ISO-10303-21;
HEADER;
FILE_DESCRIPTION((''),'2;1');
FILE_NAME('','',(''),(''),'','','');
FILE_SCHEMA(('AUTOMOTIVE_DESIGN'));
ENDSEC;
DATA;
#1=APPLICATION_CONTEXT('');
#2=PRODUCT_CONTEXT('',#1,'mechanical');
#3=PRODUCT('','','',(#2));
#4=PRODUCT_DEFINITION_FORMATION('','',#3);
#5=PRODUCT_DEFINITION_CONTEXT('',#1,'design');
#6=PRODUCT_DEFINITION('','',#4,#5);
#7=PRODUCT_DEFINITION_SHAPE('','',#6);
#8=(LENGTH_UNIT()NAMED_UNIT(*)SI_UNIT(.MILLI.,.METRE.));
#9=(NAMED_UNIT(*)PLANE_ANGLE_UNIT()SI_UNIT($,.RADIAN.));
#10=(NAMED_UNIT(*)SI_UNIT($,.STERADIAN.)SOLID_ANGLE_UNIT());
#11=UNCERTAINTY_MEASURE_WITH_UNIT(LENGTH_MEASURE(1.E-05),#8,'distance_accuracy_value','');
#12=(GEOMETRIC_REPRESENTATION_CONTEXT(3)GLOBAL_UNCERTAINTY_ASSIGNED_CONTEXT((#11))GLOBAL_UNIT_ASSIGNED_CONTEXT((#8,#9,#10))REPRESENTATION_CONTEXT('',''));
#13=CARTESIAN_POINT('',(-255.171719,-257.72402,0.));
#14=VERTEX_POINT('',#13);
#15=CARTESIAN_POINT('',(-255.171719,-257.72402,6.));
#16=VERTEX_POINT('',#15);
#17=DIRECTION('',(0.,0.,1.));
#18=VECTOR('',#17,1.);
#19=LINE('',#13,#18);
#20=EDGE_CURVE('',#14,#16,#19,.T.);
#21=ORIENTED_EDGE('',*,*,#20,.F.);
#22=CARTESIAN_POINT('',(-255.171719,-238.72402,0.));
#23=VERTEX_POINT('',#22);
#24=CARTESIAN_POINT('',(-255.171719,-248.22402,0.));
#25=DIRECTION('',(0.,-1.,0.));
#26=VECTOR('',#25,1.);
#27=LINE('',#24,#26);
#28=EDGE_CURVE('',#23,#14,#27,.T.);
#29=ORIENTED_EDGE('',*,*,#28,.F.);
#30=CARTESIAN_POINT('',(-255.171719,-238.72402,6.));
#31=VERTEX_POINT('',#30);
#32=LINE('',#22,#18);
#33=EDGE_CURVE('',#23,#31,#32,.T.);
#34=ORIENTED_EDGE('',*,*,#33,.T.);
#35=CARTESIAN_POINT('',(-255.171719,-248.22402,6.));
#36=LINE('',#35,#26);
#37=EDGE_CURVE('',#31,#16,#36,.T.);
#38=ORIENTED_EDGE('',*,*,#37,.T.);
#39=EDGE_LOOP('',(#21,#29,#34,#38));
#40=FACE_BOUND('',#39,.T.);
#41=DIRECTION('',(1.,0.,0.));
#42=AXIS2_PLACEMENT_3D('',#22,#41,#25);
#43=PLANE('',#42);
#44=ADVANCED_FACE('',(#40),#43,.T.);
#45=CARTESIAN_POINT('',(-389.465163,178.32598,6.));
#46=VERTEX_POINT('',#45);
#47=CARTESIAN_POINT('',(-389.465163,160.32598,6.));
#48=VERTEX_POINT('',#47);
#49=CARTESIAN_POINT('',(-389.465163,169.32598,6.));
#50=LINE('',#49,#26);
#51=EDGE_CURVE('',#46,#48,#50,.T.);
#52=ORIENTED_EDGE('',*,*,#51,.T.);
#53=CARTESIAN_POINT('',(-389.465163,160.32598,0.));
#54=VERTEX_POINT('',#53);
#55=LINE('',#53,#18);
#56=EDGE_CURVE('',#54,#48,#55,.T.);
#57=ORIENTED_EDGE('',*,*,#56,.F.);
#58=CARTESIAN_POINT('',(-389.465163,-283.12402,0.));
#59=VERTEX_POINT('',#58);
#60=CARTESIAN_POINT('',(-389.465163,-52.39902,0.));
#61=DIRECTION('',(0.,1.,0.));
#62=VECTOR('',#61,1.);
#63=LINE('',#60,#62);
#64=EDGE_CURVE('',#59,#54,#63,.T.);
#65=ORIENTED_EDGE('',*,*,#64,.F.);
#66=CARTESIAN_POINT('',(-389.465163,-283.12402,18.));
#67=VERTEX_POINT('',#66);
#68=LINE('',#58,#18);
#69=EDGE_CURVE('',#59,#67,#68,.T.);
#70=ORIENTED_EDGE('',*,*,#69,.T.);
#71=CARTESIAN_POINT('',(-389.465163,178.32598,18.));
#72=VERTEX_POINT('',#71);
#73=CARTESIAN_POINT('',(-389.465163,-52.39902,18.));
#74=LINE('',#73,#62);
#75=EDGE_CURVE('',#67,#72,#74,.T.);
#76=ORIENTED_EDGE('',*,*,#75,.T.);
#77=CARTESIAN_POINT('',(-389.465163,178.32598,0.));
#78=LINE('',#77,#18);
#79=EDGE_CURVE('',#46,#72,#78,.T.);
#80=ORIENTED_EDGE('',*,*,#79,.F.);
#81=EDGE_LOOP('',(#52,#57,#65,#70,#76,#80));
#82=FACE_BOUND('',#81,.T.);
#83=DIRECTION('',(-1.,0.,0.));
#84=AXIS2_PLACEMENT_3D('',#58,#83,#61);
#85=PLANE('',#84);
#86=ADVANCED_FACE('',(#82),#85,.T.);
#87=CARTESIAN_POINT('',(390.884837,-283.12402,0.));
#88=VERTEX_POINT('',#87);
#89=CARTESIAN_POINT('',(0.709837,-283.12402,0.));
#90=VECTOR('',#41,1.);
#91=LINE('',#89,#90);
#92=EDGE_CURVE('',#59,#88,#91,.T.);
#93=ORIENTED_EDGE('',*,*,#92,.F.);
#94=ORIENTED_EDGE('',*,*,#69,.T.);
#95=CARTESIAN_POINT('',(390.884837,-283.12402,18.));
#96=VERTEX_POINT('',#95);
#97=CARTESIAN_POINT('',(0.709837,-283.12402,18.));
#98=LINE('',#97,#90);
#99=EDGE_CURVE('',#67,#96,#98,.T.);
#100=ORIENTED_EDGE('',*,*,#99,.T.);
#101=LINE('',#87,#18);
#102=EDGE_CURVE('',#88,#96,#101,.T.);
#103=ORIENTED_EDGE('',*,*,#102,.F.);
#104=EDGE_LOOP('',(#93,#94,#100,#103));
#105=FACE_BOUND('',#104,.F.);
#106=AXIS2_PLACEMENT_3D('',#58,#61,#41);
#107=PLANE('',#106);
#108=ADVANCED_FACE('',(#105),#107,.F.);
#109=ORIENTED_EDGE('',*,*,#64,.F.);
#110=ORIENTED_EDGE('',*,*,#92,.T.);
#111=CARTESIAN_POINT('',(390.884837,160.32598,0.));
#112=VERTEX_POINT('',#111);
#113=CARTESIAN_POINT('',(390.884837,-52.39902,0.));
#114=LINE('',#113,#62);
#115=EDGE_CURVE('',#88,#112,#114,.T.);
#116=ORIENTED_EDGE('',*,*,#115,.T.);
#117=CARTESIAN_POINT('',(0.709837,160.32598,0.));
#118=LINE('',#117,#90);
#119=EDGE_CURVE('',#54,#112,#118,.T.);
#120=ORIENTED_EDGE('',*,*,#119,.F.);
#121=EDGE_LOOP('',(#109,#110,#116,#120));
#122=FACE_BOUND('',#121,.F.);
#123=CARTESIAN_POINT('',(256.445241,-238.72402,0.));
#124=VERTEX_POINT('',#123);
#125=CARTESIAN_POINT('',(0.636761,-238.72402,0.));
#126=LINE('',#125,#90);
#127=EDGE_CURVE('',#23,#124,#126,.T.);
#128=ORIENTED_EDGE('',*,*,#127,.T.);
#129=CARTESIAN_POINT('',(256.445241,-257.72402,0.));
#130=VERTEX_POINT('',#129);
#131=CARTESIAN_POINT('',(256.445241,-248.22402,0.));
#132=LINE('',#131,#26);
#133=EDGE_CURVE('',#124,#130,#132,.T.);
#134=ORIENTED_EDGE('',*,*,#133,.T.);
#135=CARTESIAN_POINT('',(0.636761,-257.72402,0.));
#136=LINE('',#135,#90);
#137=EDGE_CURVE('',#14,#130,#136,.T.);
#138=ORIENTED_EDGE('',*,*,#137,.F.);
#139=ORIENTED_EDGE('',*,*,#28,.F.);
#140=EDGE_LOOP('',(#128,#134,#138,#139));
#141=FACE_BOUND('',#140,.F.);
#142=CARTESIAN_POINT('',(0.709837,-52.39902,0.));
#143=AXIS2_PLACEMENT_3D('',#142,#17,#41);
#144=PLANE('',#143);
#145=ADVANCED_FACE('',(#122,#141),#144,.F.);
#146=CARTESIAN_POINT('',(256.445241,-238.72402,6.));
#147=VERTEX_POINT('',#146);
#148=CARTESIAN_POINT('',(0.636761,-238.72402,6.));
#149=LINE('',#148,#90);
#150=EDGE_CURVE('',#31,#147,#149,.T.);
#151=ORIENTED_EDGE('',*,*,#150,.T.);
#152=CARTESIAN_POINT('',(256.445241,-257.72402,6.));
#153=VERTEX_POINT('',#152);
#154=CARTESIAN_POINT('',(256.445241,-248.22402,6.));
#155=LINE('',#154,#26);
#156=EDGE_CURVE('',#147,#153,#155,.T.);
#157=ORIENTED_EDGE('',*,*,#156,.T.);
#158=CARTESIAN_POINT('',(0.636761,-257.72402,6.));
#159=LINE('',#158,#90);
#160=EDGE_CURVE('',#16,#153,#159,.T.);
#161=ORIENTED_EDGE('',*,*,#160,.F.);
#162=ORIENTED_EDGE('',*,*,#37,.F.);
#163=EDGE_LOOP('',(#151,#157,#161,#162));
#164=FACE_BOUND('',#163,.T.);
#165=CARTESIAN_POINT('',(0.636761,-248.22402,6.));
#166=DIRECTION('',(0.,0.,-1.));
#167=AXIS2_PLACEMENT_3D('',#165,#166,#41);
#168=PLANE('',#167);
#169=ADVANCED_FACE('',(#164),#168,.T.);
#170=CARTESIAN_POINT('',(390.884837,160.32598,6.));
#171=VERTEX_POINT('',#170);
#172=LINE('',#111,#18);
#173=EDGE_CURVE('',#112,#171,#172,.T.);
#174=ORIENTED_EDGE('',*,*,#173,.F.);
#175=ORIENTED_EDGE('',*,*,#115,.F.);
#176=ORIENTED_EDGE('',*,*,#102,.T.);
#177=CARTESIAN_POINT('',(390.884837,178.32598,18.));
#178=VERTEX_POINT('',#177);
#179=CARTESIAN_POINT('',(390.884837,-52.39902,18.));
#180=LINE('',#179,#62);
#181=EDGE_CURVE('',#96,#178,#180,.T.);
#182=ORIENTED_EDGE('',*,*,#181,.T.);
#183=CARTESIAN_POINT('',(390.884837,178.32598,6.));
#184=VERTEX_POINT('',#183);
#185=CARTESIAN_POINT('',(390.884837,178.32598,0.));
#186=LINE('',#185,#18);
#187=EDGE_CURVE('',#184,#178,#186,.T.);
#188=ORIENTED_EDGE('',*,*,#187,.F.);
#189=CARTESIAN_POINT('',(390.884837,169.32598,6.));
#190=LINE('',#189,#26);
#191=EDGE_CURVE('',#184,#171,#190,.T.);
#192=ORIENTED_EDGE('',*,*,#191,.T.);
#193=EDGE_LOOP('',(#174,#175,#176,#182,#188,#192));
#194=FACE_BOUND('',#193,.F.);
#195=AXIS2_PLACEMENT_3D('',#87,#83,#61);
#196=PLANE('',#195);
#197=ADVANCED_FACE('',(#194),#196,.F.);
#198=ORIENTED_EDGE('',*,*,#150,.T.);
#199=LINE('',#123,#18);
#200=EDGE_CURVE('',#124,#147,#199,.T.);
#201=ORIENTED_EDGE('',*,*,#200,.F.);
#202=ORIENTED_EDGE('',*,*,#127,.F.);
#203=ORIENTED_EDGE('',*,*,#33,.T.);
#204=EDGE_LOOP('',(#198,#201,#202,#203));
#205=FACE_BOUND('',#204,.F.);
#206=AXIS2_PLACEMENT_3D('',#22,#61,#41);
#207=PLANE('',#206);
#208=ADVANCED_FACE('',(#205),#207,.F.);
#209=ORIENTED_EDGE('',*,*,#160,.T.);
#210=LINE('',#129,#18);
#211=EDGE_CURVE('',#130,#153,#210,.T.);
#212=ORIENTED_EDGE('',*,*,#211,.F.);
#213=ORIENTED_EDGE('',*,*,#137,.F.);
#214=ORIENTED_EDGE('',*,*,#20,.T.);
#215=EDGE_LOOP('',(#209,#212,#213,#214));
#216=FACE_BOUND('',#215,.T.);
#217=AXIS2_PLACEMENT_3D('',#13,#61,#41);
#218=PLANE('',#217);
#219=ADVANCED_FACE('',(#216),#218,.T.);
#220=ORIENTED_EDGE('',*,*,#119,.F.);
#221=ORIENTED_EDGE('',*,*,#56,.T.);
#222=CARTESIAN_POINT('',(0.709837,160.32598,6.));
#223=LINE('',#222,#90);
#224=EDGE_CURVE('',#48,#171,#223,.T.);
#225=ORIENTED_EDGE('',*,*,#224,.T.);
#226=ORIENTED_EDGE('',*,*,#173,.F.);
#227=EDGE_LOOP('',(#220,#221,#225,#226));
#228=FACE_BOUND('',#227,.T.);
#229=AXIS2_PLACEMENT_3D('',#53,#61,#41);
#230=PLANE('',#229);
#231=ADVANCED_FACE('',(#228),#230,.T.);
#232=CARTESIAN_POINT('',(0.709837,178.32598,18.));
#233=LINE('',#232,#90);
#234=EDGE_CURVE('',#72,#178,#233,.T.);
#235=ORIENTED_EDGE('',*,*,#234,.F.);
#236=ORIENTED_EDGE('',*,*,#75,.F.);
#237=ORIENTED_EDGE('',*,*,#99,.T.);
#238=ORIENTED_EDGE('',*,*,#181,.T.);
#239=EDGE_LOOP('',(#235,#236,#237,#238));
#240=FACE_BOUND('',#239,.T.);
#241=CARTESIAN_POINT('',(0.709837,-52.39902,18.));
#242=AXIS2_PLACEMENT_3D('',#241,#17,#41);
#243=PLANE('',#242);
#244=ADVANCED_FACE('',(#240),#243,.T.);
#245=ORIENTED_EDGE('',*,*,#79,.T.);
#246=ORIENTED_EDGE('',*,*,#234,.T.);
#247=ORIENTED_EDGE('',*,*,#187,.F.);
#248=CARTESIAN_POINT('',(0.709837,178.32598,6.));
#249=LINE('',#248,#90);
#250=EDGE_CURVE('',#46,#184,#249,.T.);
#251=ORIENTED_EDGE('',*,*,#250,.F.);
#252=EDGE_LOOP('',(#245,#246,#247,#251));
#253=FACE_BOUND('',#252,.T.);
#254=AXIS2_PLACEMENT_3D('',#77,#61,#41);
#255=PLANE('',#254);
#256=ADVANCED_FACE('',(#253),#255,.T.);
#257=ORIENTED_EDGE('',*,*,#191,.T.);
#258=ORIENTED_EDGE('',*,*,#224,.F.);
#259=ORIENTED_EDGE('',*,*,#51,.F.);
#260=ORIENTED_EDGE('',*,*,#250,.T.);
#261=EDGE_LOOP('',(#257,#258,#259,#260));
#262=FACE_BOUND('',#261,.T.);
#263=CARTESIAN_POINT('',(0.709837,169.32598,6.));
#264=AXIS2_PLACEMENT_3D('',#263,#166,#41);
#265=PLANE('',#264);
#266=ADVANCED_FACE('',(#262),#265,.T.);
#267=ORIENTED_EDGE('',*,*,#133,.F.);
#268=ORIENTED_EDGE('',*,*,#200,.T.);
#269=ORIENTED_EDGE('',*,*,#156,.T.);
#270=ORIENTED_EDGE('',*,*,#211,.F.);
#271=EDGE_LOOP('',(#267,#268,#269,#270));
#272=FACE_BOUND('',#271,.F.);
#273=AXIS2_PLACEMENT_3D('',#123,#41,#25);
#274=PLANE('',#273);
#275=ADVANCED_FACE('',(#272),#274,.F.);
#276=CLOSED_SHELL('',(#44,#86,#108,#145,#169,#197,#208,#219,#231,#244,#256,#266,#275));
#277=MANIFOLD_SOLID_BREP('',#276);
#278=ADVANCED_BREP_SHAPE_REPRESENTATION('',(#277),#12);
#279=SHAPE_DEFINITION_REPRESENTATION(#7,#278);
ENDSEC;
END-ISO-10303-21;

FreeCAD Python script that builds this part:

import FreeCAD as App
import Part
import Sketcher

doc = App.newDocument("Part")
body = doc.addObject("PartDesign::Body", "Body")

# Sketch on XY plane
sketch1 = body.newObject("Sketcher::SketchObject", "Sketch")
sketch1.AttachmentSupport = (doc.getObject("XY_Plane"), [""])
sketch1.MapMode = "FlatFace"
sketch1.addGeometry([
    Part.LineSegment(App.Vector(-389, 178, 0), App.Vector(-389, -283, 0)),
    Part.LineSegment(App.Vector(-389, -283, 0), App.Vector(391, -283, 0)),
    Part.LineSegment(App.Vector(391, -283, 0), App.Vector(391, 178, 0)),
    Part.LineSegment(App.Vector(391, 178, 0), App.Vector(-389, 178, 0)),
], False)
sketch1.addConstraint([
    Sketcher.Constraint("Coincident", 0, 2, 1, 1),
    Sketcher.Constraint("Coincident", 1, 2, 2, 1),
    Sketcher.Constraint("Coincident", 2, 2, 3, 1),
    Sketcher.Constraint("Coincident", 3, 2, 0, 1),
    Sketcher.Constraint("Vertical", 0),
    Sketcher.Constraint("Horizontal", 1),
    Sketcher.Constraint("Vertical", 2),
    Sketcher.Constraint("Horizontal", 3),
    Sketcher.Constraint("DistanceX", 1, 1, 1, 2, 780.35),
    Sketcher.Constraint("DistanceY", 0, 2, 0, 1, 461.45),
    Sketcher.Constraint("DistanceY", 0, 2, -1, 1, 283.12402),
    Sketcher.Constraint("DistanceX", 0, 2, -1, 1, 389.465163),
])
pad1 = body.newObject("PartDesign::Pad", "Pad")
pad1.Profile = sketch1
pad1.Length = 18

# Sketch on XY plane
sketch2 = body.newObject("Sketcher::SketchObject", "Sketch001")
sketch2.AttachmentSupport = (doc.getObject("XY_Plane"), [""])
sketch2.MapMode = "FlatFace"
sketch2.addGeometry([
    Part.LineSegment(App.Vector(-255, -258, 0), App.Vector(-255, -239, 0)),  # 0
    Part.LineSegment(App.Vector(-255, -239, 0), App.Vector(256, -239, 0)),  # 1
    Part.LineSegment(App.Vector(256, -239, 0), App.Vector(256, -258, 0)),  # 2
    Part.LineSegment(App.Vector(256, -258, 0), App.Vector(-255, -258, 0)),  # 3
    Part.LineSegment(App.Vector(-389, 160, 0), App.Vector(-389, 178, 0)),  # 4
    Part.LineSegment(App.Vector(-389, 178, 0), App.Vector(391, 178, 0)),  # 5
    Part.LineSegment(App.Vector(391, 178, 0), App.Vector(391, 160, 0)),  # 6
    Part.LineSegment(App.Vector(391, 160, 0), App.Vector(-389, 160, 0)),  # 7
], False)
sketch2.addConstraint([
    Sketcher.Constraint("Coincident", 0, 2, 1, 1),
    Sketcher.Constraint("Coincident", 1, 2, 2, 1),
    Sketcher.Constraint("Coincident", 2, 2, 3, 1),
    Sketcher.Constraint("Coincident", 3, 2, 0, 1),
    Sketcher.Constraint("Coincident", 4, 2, 5, 1),
    Sketcher.Constraint("Coincident", 5, 2, 6, 1),
    Sketcher.Constraint("Coincident", 6, 2, 7, 1),
    Sketcher.Constraint("Coincident", 7, 2, 4, 1),
    Sketcher.Constraint("Vertical", 0),
    Sketcher.Constraint("Horizontal", 1),
    Sketcher.Constraint("Vertical", 2),
    Sketcher.Constraint("Horizontal", 3),
    Sketcher.Constraint("Vertical", 4),
    Sketcher.Constraint("Horizontal", 5),
    Sketcher.Constraint("Vertical", 6),
    Sketcher.Constraint("Horizontal", 7),
    Sketcher.Constraint("DistanceY", 0, 1, 0, 2, 19.0),
    Sketcher.Constraint("DistanceY", 4, 1, 4, 2, 18.0),
    Sketcher.Constraint("DistanceX", 5, 1, 5, 2, 780.35),
    Sketcher.Constraint("DistanceY", 0, 2, 4, 2, 417.05),
    Sketcher.Constraint("DistanceX", 1, 1, 1, 2, 511.61696),
    Sketcher.Constraint("DistanceX", 0, 2, -1, 1, 255.171719),
    Sketcher.Constraint("DistanceY", 0, 2, -1, 1, 238.72402),
    Sketcher.Constraint("DistanceX", 4, 2, -1, 1, 389.465163),
])
pocket1 = body.newObject("PartDesign::Pocket", "Pocket")
pocket1.Profile = sketch2
pocket1.Length = 6
pocket1.Reversed = True

doc.recompute()
